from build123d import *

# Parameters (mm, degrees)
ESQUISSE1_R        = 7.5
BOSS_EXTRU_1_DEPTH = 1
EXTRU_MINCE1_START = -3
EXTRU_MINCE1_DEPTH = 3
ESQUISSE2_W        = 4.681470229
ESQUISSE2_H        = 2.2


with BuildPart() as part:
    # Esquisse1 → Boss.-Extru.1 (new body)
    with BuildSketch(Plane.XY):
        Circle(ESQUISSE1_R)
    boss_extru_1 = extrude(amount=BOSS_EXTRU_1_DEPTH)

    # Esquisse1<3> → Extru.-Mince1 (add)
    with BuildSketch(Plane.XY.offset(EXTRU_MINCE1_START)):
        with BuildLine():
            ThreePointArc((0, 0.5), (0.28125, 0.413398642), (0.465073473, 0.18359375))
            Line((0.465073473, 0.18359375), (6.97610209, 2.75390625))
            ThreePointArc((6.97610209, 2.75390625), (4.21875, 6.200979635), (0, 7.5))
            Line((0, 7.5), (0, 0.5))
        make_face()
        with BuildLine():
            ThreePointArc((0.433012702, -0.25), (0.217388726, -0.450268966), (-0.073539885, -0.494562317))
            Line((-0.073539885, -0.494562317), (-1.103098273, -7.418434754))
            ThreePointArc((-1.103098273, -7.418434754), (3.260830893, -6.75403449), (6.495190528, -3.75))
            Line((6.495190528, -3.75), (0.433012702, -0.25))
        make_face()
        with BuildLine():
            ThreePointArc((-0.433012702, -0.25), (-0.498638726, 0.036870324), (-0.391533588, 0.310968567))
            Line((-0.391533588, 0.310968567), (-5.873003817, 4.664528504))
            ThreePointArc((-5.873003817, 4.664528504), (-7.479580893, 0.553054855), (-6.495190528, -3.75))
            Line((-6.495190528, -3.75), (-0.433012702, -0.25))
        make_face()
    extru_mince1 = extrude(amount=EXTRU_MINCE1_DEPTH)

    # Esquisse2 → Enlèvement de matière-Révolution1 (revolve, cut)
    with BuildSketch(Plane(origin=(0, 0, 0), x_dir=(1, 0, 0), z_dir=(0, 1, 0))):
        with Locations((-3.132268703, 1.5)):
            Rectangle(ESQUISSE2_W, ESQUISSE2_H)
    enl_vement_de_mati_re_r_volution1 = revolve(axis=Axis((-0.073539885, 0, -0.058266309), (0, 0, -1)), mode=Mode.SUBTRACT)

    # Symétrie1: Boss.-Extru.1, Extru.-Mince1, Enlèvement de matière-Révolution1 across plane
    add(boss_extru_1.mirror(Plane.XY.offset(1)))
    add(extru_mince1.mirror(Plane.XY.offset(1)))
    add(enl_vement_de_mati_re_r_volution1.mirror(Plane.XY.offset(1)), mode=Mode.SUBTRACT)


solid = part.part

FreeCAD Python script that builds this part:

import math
import FreeCAD as App
import Part
import Sketcher
from FreeCAD import Vector
Q = App.Units.Quantity


def add_polygon(sketch, points):
    """Adds a closed chain of lines whose ends are joined by coincident constraints."""
    first, n = sketch.GeometryCount, len(points)
    for a, b in zip(points, points[1:] + points[:1]):
        sketch.addGeometry(Part.LineSegment(App.Vector(*a, 0), App.Vector(*b, 0)), False)
    for i in range(n):
        sketch.addConstraint(Sketcher.Constraint("Coincident", first + i, 2, first + (i + 1) % n, 1))

doc = App.newDocument("Part")
body = doc.addObject("PartDesign::Body", "Body")

sketch1 = body.newObject("Sketcher::SketchObject", "Sketch")
sketch1.AttachmentSupport = (doc.getObject("XY_Plane"), [""])
sketch1.MapMode = "FlatFace"
sketch1.addGeometry(Part.Circle(Vector(0, 0, 0), Vector(0, 0, 1), 8), False)
sketch1.addConstraint(Sketcher.Constraint("Coincident", 0, 3, -1, 1))
sketch1.addConstraint(Sketcher.Constraint("Diameter", 0, 15.0))
pad1 = body.newObject("PartDesign::Pad", "Pad")
pad1.Profile = sketch1
pad1.Length = 1

sketch2 = body.newObject("Sketcher::SketchObject", "Sketch001")
sketch2.AttachmentSupport = (doc.getObject("XY_Plane"), [""])
sketch2.MapMode = "FlatFace"
sketch2.AttachmentOffset = App.Placement(Vector(0, 0, -3), App.Rotation())
sketch2.addGeometry(Part.ArcOfCircle(Part.Circle(Vector(0, 0, 0), Vector(0, 0, 1), 0.5), math.radians(22), math.radians(90)), False)
sketch2.addGeometry(Part.LineSegment(Vector(0.5, 0.2, 0), Vector(7, 2.8, 0)), False)
sketch2.addGeometry(Part.ArcOfCircle(Part.Circle(Vector(0, 0, 0), Vector(0, 0, 1), 7.5), math.radians(22), math.radians(90)), False)
sketch2.addGeometry(Part.LineSegment(Vector(0, 7.5, 0), Vector(0, 0.5, 0)), False)
sketch2.addGeometry(Part.ArcOfCircle(Part.Circle(Vector(0, 0, 0), Vector(0, 0, 1), 0.5), math.radians(-98), math.radians(-30)), False)
sketch2.addGeometry(Part.LineSegment(Vector(-0.1, -0.5, 0), Vector(-1.1, -7.4, 0)), False)
sketch2.addGeometry(Part.ArcOfCircle(Part.Circle(Vector(0, 0, 0), Vector(0, 0, 1), 7.5), math.radians(-98), math.radians(-30)), False)
sketch2.addGeometry(Part.LineSegment(Vector(6.5, -3.8, 0), Vector(0.4, -0.2, 0)), False)
sketch2.addGeometry(Part.ArcOfCircle(Part.Circle(Vector(0, 0, 0), Vector(0, 0, 1), 0.5), math.radians(142), math.radians(210)), False)
sketch2.addGeometry(Part.LineSegment(Vector(-0.4, 0.3, 0), Vector(-5.9, 4.7, 0)), False)
sketch2.addGeometry(Part.ArcOfCircle(Part.Circle(Vector(0, 0, 0), Vector(0, 0, 1), 7.5), math.radians(142), math.radians(210)), False)
sketch2.addGeometry(Part.LineSegment(Vector(-6.5, -3.8, 0), Vector(-0.4, -0.2, 0)), False)
sketch2.addConstraint(Sketcher.Constraint("Coincident", 0, 1, 1, 1))
sketch2.addConstraint(Sketcher.Constraint("Coincident", 1, 2, 2, 1))
sketch2.addConstraint(Sketcher.Constraint("Coincident", 2, 2, 3, 1))
sketch2.addConstraint(Sketcher.Constraint("Coincident", 3, 2, 0, 2))
sketch2.addConstraint(Sketcher.Constraint("Coincident", 4, 1, 5, 1))
sketch2.addConstraint(Sketcher.Constraint("Coincident", 5, 2, 6, 1))
sketch2.addConstraint(Sketcher.Constraint("Coincident", 6, 2, 7, 1))
sketch2.addConstraint(Sketcher.Constraint("Coincident", 7, 2, 4, 2))
sketch2.addConstraint(Sketcher.Constraint("Coincident", 8, 1, 9, 1))
sketch2.addConstraint(Sketcher.Constraint("Coincident", 9, 2, 10, 1))
sketch2.addConstraint(Sketcher.Constraint("Coincident", 10, 2, 11, 1))
sketch2.addConstraint(Sketcher.Constraint("Coincident", 11, 2, 8, 2))
sketch2.addConstraint(Sketcher.Constraint("Vertical", 3))
sketch2.addConstraint(Sketcher.Constraint("Coincident", 0, 3, -1, 1))
sketch2.addConstraint(Sketcher.Constraint("Coincident", 2, 3, -1, 1))
sketch2.addConstraint(Sketcher.Constraint("Coincident", 4, 3, -1, 1))
sketch2.addConstraint(Sketcher.Constraint("Coincident", 6, 3, -1, 1))
sketch2.addConstraint(Sketcher.Constraint("Coincident", 8, 3, -1, 1))
sketch2.addConstraint(Sketcher.Constraint("Coincident", 10, 3, -1, 1))
sketch2.addConstraint(Sketcher.Constraint("Equal", 0, 4))
sketch2.addConstraint(Sketcher.Constraint("Equal", 2, 6))
sketch2.addConstraint(Sketcher.Constraint("Equal", 4, 8))
sketch2.addConstraint(Sketcher.Constraint("Equal", 6, 10))
sketch2.addConstraint(Sketcher.Constraint("PointOnObject", 2, 2, -2))
sketch2.addConstraint(Sketcher.Constraint("Horizontal", 6, 2, 10, 2))
sketch2.addConstraint(Sketcher.Constraint("Horizontal", 7, 2, 11, 2))
sketch2.addConstraint(Sketcher.Constraint("Radius", 0, 0.5))
sketch2.addConstraint(Sketcher.Constraint("Radius", 2, 7.5))
sketch2.addConstraint(Sketcher.Constraint("Angle", 7, Q("150 deg")))
sketch2.addConstraint(Sketcher.Constraint("DistanceY", 6, 2, -1, 1, 3.75))
sketch2.addConstraint(Sketcher.Constraint("DistanceX", 5, 2, -1, 1, 1.103098))
sketch2.addConstraint(Sketcher.Constraint("DistanceX", 4, 1, -1, 1, 0.07354))
sketch2.addConstraint(Sketcher.Constraint("DistanceY", -1, 1, 8, 1, 0.310969))
sketch2.addConstraint(Sketcher.Constraint("DistanceY", -1, 1, 9, 2, 4.664529))
sketch2.addConstraint(Sketcher.Constraint("DistanceX", 0, 1, 1, 2, 6.511029))
sketch2.addConstraint(Sketcher.Constraint("DistanceX", 6, 2, 1, 2, 0.480912))
pad2 = body.newObject("PartDesign::Pad", "Pad001")
pad2.Profile = sketch2
pad2.Length = 3

sketch3 = body.newObject("Sketcher::SketchObject", "Sketch002")
sketch3.AttachmentSupport = (doc.getObject("XZ_Plane"), [""])
sketch3.MapMode = "FlatFace"
add_polygon(sketch3, [(-5.5, -2.6), (-5.5, -0.4), (-0.8, -0.4), (-0.8, -2.6)])
sketch3.addGeometry(Part.LineSegment(Vector(-0.1, -0.4, 0), Vector(-0.1, -2.6, 0)), True)
sketch3.addConstraint(Sketcher.Constraint("Vertical", 0))
sketch3.addConstraint(Sketcher.Constraint("Horizontal", 1))
sketch3.addConstraint(Sketcher.Constraint("Vertical", 2))
sketch3.addConstraint(Sketcher.Constraint("Horizontal", 3))
sketch3.addConstraint(Sketcher.Constraint("Vertical", 4))
sketch3.addConstraint(Sketcher.Constraint("Horizontal", 1, 2, 4, 1))
sketch3.addConstraint(Sketcher.Constraint("Horizontal", 3, 2, 4, 2))
sketch3.addConstraint(Sketcher.Constraint("DistanceY", 0, 1, 0, 2, 2.2))
sketch3.addConstraint(Sketcher.Constraint("DistanceY", 0, 2, -1, 1, 0.4))
sketch3.addConstraint(Sketcher.Constraint("DistanceX", 1, 1, 1, 2, 4.68147))
sketch3.addConstraint(Sketcher.Constraint("DistanceX", 4, 1, -1, 1, 0.07354))
sketch3.addConstraint(Sketcher.Constraint("DistanceX", 0, 2, -1, 1, 5.473004))
groove = body.newObject("PartDesign::Groove", "Groove")
groove.Profile = sketch3
groove.ReferenceAxis = (sketch3, ["Axis0"])
groove.Angle = 360
doc.recompute()

datumplane = body.newObject("PartDesign::Plane", "DatumPlane")
datumplane.AttachmentSupport = (doc.getObject("XY_Plane"), [""])
datumplane.MapMode = "FlatFace"
datumplane.AttachmentOffset = App.Placement(Vector(0, 0, 1), App.Rotation())
mirrored = body.newObject("PartDesign::Mirrored", "Mirrored")
mirrored.Originals = [pad1, pad2, groove]
mirrored.MirrorPlane = (datumplane, [""])
body.Tip = mirrored

doc.recompute()
